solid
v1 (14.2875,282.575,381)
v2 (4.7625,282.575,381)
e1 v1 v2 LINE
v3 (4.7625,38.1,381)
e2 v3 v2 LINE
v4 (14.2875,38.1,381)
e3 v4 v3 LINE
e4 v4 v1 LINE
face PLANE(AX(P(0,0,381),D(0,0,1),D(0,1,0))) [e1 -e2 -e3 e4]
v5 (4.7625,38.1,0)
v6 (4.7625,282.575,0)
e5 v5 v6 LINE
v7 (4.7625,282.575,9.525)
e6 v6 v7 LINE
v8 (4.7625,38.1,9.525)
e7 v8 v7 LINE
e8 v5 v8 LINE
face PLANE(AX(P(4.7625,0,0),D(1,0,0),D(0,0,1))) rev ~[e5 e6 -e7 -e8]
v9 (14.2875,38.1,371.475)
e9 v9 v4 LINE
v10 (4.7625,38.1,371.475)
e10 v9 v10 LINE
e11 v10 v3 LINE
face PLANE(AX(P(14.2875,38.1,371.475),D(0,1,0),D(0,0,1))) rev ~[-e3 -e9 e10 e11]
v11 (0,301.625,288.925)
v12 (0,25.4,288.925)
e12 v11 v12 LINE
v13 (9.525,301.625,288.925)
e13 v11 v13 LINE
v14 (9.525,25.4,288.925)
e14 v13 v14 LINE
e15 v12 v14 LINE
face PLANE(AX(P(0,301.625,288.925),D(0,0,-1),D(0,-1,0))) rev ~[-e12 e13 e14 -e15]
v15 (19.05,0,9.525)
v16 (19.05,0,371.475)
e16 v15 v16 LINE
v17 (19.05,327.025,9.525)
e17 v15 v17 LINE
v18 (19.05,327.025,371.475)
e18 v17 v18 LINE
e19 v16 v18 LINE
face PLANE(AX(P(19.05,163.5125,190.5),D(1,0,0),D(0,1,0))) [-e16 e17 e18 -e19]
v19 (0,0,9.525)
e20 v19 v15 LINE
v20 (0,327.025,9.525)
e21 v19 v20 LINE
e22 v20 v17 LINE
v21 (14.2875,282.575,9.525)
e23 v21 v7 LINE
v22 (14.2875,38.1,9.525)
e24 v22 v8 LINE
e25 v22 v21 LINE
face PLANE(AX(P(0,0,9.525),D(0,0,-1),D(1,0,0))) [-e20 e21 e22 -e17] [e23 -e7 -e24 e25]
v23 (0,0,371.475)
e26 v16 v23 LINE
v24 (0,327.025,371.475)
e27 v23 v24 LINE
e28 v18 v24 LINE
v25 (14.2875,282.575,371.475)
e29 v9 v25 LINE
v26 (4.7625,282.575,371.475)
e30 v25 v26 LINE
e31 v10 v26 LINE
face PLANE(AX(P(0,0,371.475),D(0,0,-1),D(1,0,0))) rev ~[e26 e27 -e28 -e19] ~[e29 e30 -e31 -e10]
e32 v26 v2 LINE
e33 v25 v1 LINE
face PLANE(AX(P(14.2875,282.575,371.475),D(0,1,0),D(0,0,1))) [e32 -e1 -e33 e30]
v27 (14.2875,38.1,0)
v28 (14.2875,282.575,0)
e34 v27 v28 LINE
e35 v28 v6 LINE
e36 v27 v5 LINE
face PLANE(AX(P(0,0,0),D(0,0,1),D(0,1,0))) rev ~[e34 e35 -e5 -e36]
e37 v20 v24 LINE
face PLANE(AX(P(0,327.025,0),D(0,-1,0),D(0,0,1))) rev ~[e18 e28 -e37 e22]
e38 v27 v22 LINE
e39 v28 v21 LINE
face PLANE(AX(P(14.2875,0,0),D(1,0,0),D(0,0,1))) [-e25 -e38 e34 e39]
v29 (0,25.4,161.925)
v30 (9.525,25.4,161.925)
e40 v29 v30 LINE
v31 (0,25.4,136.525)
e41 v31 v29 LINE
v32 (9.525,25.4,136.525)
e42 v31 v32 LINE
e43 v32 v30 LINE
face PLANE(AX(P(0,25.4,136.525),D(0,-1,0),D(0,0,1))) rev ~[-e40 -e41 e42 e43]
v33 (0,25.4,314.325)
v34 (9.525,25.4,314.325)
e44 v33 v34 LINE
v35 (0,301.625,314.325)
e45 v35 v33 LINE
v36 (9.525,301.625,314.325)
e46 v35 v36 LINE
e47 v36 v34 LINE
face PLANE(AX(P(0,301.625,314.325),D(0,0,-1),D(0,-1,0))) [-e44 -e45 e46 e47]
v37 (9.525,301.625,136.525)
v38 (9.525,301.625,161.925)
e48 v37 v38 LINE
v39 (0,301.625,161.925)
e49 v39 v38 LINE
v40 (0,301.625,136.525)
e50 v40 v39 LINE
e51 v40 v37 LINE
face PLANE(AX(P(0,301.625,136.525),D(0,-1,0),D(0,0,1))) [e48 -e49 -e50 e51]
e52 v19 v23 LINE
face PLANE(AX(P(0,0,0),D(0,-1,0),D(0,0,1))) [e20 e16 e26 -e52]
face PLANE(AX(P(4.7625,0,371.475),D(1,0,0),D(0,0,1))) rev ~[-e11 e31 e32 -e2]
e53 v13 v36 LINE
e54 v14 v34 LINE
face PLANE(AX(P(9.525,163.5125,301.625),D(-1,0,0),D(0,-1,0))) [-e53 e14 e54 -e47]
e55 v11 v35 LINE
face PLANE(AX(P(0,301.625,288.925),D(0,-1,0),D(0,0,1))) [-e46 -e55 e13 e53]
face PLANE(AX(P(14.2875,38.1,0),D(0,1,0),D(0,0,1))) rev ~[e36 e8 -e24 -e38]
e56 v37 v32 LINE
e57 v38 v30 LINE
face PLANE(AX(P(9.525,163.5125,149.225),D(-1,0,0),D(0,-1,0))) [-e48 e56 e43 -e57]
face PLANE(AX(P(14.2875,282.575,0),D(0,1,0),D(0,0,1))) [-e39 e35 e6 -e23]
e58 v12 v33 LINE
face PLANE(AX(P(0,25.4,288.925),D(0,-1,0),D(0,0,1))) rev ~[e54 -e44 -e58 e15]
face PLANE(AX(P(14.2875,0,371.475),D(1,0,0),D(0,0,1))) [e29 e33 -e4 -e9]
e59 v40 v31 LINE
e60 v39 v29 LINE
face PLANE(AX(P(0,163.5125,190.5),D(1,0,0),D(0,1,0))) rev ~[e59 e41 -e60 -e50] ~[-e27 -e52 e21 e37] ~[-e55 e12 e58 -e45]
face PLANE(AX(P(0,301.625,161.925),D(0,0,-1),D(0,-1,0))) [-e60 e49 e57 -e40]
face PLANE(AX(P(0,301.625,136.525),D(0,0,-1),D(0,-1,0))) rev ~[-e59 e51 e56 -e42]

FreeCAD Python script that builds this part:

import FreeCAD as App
import Part
import Sketcher

V = App.Vector
Q = App.Units.Quantity


def add_polygon(sketch, points):
    """Adds a closed chain of lines whose ends are joined by coincident constraints."""
    first, n = sketch.GeometryCount, len(points)
    for a, b in zip(points, points[1:] + points[:1]):
        sketch.addGeometry(Part.LineSegment(App.Vector(*a, 0), App.Vector(*b, 0)), False)
    for i in range(n):
        sketch.addConstraint(Sketcher.Constraint("Coincident", first + i, 2, first + (i + 1) % n, 1))

doc = App.newDocument("Part")
params = doc.addObject("Spreadsheet::Sheet", "Params")
for row, (alias, value) in enumerate([
    ("sketch1_height", "15 in"),
    ("sketch1_width", "12.875 in"),
    ("pad1_length", "0.75 in"),
    ("sketch2_width", "0.1875 in"),
    ("sketch2_height", "0.375 in"),
    ("sketch3_width", "1.5 in"),
    ("sketch3_width2", "1.75 in"),
    ("sketch3_height", "0.375 in"),
    ("sketch4_height", "1 in"),
    ("sketch4_width", "10.875 in"),
    ("pocket3_length", "0.375 in"),
], start=1):
    params.set(f"A{row}", alias)
    params.set(f"B{row}", "=" + value)
    params.setAlias(f"B{row}", alias)

body = doc.addObject("PartDesign::Body", "Body")

sketch1 = body.newObject("Sketcher::SketchObject", "Sketch")
sketch1.AttachmentSupport = (doc.getObject("YZ_Plane"), [""])
sketch1.MapMode = "FlatFace"
add_polygon(sketch1, [(0, 381), (0, 0), (327, 0), (327, 381)])
sketch1.addConstraint(Sketcher.Constraint("Vertical", 0))
sketch1.addConstraint(Sketcher.Constraint("Horizontal", 1))
sketch1.addConstraint(Sketcher.Constraint("Vertical", 2))
sketch1.addConstraint(Sketcher.Constraint("Horizontal", 3))
sketch1.addConstraint(Sketcher.Constraint("Coincident", 0, 2, -1, 1))
sketch1.addConstraint(Sketcher.Constraint("DistanceY", 0, 2, 0, 1, Q("15 in")))
sketch1.addConstraint(Sketcher.Constraint("DistanceX", 1, 1, 1, 2, Q("12.875 in")))
sketch1.setExpression("Constraints[9]", "Params.sketch1_height")
sketch1.setExpression("Constraints[10]", "Params.sketch1_width")
pad1 = body.newObject("PartDesign::Pad", "Pad")
pad1.Profile = sketch1
pad1.setExpression("Length", "Params.pad1_length")

sketch2 = body.newObject("Sketcher::SketchObject", "Sketch001")
sketch2.AttachmentSupport = (doc.getObject("XZ_Plane"), [""])
sketch2.MapMode = "FlatFace"
add_polygon(sketch2, [(0, 381), (0, 371.5), (4.8, 371.5), (4.8, 381)])
add_polygon(sketch2, [(14.3, 381), (14.3, 371.5), (19.1, 371.5), (19.1, 381)])
add_polygon(sketch2, [(0, 9.5), (0, 0), (4.8, 0), (4.8, 9.5)])
add_polygon(sketch2, [(14.3, 9.5), (14.3, 0), (19.1, 0), (19.1, 9.5)])
sketch2.addConstraint(Sketcher.Constraint("Vertical", 0))
sketch2.addConstraint(Sketcher.Constraint("Horizontal", 1))
sketch2.addConstraint(Sketcher.Constraint("Vertical", 2))
sketch2.addConstraint(Sketcher.Constraint("Horizontal", 3))
sketch2.addConstraint(Sketcher.Constraint("Vertical", 4))
sketch2.addConstraint(Sketcher.Constraint("Horizontal", 5))
sketch2.addConstraint(Sketcher.Constraint("Vertical", 6))
sketch2.addConstraint(Sketcher.Constraint("Horizontal", 7))
sketch2.addConstraint(Sketcher.Constraint("Vertical", 8))
sketch2.addConstraint(Sketcher.Constraint("Horizontal", 9))
sketch2.addConstraint(Sketcher.Constraint("Vertical", 10))
sketch2.addConstraint(Sketcher.Constraint("Horizontal", 11))
sketch2.addConstraint(Sketcher.Constraint("Vertical", 12))
sketch2.addConstraint(Sketcher.Constraint("Horizontal", 13))
sketch2.addConstraint(Sketcher.Constraint("Vertical", 14))
sketch2.addConstraint(Sketcher.Constraint("Horizontal", 15))
sketch2.addConstraint(Sketcher.Constraint("Coincident", 8, 2, -1, 1))
sketch2.addConstraint(Sketcher.Constraint("PointOnObject", 0, 2, -2))
sketch2.addConstraint(Sketcher.Constraint("PointOnObject", 12, 2, -1))
sketch2.addConstraint(Sketcher.Constraint("Horizontal", 1, 2, 4, 2))
sketch2.addConstraint(Sketcher.Constraint("Horizontal", 3, 2, 6, 2))
sketch2.addConstraint(Sketcher.Constraint("Horizontal", 11, 2, 14, 2))
sketch2.addConstraint(Sketcher.Constraint("Vertical", 2, 2, 9, 2))
sketch2.addConstraint(Sketcher.Constraint("Vertical", 7, 2, 12, 2))
sketch2.addConstraint(Sketcher.Constraint("Vertical", 6, 2, 13, 2))
sketch2.addConstraint(Sketcher.Constraint("Equal", 3, 5))
sketch2.addConstraint(Sketcher.Constraint("Equal", 6, 8))
sketch2.addConstraint(Sketcher.Constraint("DistanceY", -1, 1, 2, 2, Q("15 in")))
sketch2.addConstraint(Sketcher.Constraint("DistanceX", 1, 1, 1, 2, Q("0.1875 in")))
sketch2.addConstraint(Sketcher.Constraint("DistanceY", 0, 2, 0, 1, Q("0.375 in")))
sketch2.addConstraint(Sketcher.Constraint("DistanceX", -1, 1, 5, 2, Q("0.75 in")))
sketch2.setExpression("Constraints[44]", "Params.sketch2_width")
sketch2.setExpression("Constraints[45]", "Params.sketch2_height")
pocket1 = body.newObject("PartDesign::Pocket", "Pocket")
pocket1.Profile = sketch2
pocket1.Type = "ThroughAll"

sketch3 = body.newObject("Sketcher::SketchObject", "Sketch002")
sketch3.AttachmentSupport = (doc.getObject("YZ_Plane"), [""])
sketch3.MapMode = "FlatFace"
sketch3.AttachmentOffset = App.Placement(V(0, 0, 0.5625 * 25.4), App.Rotation())
add_polygon(sketch3, [(0, 381), (0, 371), (38, 371), (38, 381)])
add_polygon(sketch3, [(0, 10), (0, 0), (38, 0), (38, 10)])
add_polygon(sketch3, [(283, 381), (283, 371), (327, 371), (327, 381)])
add_polygon(sketch3, [(283, 10), (283, 0), (327, 0), (327, 10)])
sketch3.addConstraint(Sketcher.Constraint("Vertical", 0))
sketch3.addConstraint(Sketcher.Constraint("Horizontal", 1))
sketch3.addConstraint(Sketcher.Constraint("Vertical", 2))
sketch3.addConstraint(Sketcher.Constraint("Horizontal", 3))
sketch3.addConstraint(Sketcher.Constraint("Vertical", 4))
sketch3.addConstraint(Sketcher.Constraint("Horizontal", 5))
sketch3.addConstraint(Sketcher.Constraint("Vertical", 6))
sketch3.addConstraint(Sketcher.Constraint("Horizontal", 7))
sketch3.addConstraint(Sketcher.Constraint("Vertical", 8))
sketch3.addConstraint(Sketcher.Constraint("Horizontal", 9))
sketch3.addConstraint(Sketcher.Constraint("Vertical", 10))
sketch3.addConstraint(Sketcher.Constraint("Horizontal", 11))
sketch3.addConstraint(Sketcher.Constraint("Vertical", 12))
sketch3.addConstraint(Sketcher.Constraint("Horizontal", 13))
sketch3.addConstraint(Sketcher.Constraint("Vertical", 14))
sketch3.addConstraint(Sketcher.Constraint("Horizontal", 15))
sketch3.addConstraint(Sketcher.Constraint("Coincident", 4, 2, -1, 1))
sketch3.addConstraint(Sketcher.Constraint("PointOnObject", 0, 2, -2))
sketch3.addConstraint(Sketcher.Constraint("PointOnObject", 12, 2, -1))
sketch3.addConstraint(Sketcher.Constraint("Horizontal", 1, 2, 8, 2))
sketch3.addConstraint(Sketcher.Constraint("Horizontal", 3, 2, 10, 2))
sketch3.addConstraint(Sketcher.Constraint("Horizontal", 7, 2, 14, 2))
sketch3.addConstraint(Sketcher.Constraint("Vertical", 2, 2, 5, 2))
sketch3.addConstraint(Sketcher.Constraint("Vertical", 11, 2, 12, 2))
sketch3.addConstraint(Sketcher.Constraint("Vertical", 10, 2, 13, 2))
sketch3.addConstraint(Sketcher.Constraint("Equal", 2, 4))
sketch3.addConstraint(Sketcher.Constraint("DistanceX", 1, 1, 1, 2, Q("1.5 in")))
sketch3.addConstraint(Sketcher.Constraint("DistanceY", -1, 1, 2, 2, Q("15 in")))
sketch3.addConstraint(Sketcher.Constraint("DistanceX", 9, 1, 9, 2, Q("1.75 in")))
sketch3.addConstraint(Sketcher.Constraint("DistanceY", 0, 2, 0, 1, Q("0.375 in")))
sketch3.addConstraint(Sketcher.Constraint("DistanceX", -1, 1, 8, 2, Q("11.125 in")))
sketch3.setExpression("Constraints[42]", "Params.sketch3_width")
sketch3.setExpression("Constraints[44]", "Params.sketch3_width2")
sketch3.setExpression("Constraints[45]", "Params.sketch3_height")
pocket2 = body.newObject("PartDesign::Pocket", "Pocket001")
pocket2.Profile = sketch3
pocket2.Type = "ThroughAll"

sketch4 = body.newObject("Sketcher::SketchObject", "Sketch003")
sketch4.AttachmentSupport = (doc.getObject("YZ_Plane"), [""])
sketch4.MapMode = "FlatFace"
add_polygon(sketch4, [(302, 314), (302, 289), (25, 289), (25, 314)])
add_polygon(sketch4, [(302, 162), (302, 137), (25, 137), (25, 162)])
sketch4.addConstraint(Sketcher.Constraint("Vertical", 0))
sketch4.addConstraint(Sketcher.Constraint("Horizontal", 1))
sketch4.addConstraint(Sketcher.Constraint("Vertical", 2))
sketch4.addConstraint(Sketcher.Constraint("Horizontal", 3))
sketch4.addConstraint(Sketcher.Constraint("Vertical", 4))
sketch4.addConstraint(Sketcher.Constraint("Horizontal", 5))
sketch4.addConstraint(Sketcher.Constraint("Vertical", 6))
sketch4.addConstraint(Sketcher.Constraint("Horizontal", 7))
sketch4.addConstraint(Sketcher.Constraint("Vertical", 3, 2, 4, 2))
sketch4.addConstraint(Sketcher.Constraint("Vertical", 2, 2, 5, 2))
sketch4.addConstraint(Sketcher.Constraint("Equal", 2, 4))
sketch4.addConstraint(Sketcher.Constraint("DistanceY", 0, 2, 0, 1, Q("1 in")))
sketch4.addConstraint(Sketcher.Constraint("DistanceX", -1, 1, 1, 2, Q("1 in")))
sketch4.addConstraint(Sketcher.Constraint("DistanceY", 4, 2, 0, 2, Q("6 in")))
sketch4.addConstraint(Sketcher.Constraint("DistanceX", 1, 2, 1, 1, Q("10.875 in")))
sketch4.addConstraint(Sketcher.Constraint("DistanceY", -1, 1, 0, 2, Q("11.375 in")))
sketch4.setExpression("Constraints[19]", "Params.sketch4_height")
sketch4.setExpression("Constraints[22]", "Params.sketch4_width")
pocket3 = body.newObject("PartDesign::Pocket", "Pocket002")
pocket3.Profile = sketch4
pocket3.setExpression("Length", "Params.pocket3_length")
pocket3.Reversed = True

doc.recompute()
